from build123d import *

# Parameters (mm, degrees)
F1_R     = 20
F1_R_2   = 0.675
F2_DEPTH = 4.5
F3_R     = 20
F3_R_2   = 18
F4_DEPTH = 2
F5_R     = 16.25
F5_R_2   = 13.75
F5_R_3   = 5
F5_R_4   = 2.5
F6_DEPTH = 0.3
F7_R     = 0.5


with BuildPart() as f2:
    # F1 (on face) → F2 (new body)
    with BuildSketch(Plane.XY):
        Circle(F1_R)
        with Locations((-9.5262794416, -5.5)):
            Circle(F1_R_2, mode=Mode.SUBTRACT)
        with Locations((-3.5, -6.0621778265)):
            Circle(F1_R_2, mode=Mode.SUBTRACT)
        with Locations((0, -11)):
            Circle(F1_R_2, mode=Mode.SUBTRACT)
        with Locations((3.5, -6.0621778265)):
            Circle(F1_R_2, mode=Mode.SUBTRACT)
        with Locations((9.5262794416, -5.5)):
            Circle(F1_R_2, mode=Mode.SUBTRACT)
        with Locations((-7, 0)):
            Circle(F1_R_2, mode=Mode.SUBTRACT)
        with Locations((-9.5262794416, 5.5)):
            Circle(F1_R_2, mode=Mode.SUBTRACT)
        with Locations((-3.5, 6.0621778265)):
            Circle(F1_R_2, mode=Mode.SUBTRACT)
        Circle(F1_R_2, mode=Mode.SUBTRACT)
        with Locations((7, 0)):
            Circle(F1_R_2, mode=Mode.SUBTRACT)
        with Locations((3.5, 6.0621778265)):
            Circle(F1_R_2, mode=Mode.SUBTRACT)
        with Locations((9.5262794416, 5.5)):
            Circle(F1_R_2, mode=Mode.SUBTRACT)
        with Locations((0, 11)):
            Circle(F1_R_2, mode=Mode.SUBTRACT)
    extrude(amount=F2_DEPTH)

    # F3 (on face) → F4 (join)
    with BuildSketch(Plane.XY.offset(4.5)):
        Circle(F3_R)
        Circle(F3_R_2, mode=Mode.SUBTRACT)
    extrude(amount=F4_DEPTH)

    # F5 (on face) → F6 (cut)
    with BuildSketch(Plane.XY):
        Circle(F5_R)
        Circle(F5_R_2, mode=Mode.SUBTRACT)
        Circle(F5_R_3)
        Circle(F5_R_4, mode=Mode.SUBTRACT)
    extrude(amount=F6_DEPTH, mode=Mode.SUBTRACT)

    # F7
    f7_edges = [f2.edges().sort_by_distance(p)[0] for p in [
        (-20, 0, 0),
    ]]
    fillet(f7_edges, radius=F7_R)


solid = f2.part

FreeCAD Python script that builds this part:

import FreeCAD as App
import Part
import Sketcher


def edges_at(feature, points):
    """Names of the edges that pass closest to the given points."""
    edges = feature.Shape.Edges
    near = lambda p: min(range(len(edges)), key=lambda i: edges[i].distToShape(Part.Vertex(*p))[0])
    return sorted({f"Edge{near(p) + 1}" for p in points})

doc = App.newDocument("Part")
body = doc.addObject("PartDesign::Body", "Body")

# Sketch on XY plane
sketch1 = body.newObject("Sketcher::SketchObject", "Sketch")
sketch1.AttachmentSupport = (doc.getObject("XY_Plane"), [""])
sketch1.MapMode = "FlatFace"
sketch1.addGeometry([
    Part.Circle(App.Vector(0, 0, 0), App.Vector(0, 0, 1), 20),  # 0
    Part.Circle(App.Vector(-3.5, -6.062178, 0), App.Vector(0, 0, 1), 0.675),  # 1
    Part.Circle(App.Vector(-9.526279, -5.5, 0), App.Vector(0, 0, 1), 0.675),  # 2
    Part.Circle(App.Vector(0, -11, 0), App.Vector(0, 0, 1), 0.675),  # 3
    Part.Circle(App.Vector(3.5, -6.062178, 0), App.Vector(0, 0, 1), 0.675),  # 4
    Part.Circle(App.Vector(9.526279, -5.5, 0), App.Vector(0, 0, 1), 0.675),  # 5
    Part.Circle(App.Vector(-7, 0, 0), App.Vector(0, 0, 1), 0.675),  # 6
    Part.Circle(App.Vector(-9.526279, 5.5, 0), App.Vector(0, 0, 1), 0.675),  # 7
    Part.Circle(App.Vector(-3.5, 6.062178, 0), App.Vector(0, 0, 1), 0.675),  # 8
    Part.Circle(App.Vector(0, 0, 0), App.Vector(0, 0, 1), 0.675),  # 9
    Part.Circle(App.Vector(7, 0, 0), App.Vector(0, 0, 1), 0.675),  # 10
    Part.Circle(App.Vector(9.526279, 5.5, 0), App.Vector(0, 0, 1), 0.675),  # 11
    Part.Circle(App.Vector(3.5, 6.062178, 0), App.Vector(0, 0, 1), 0.675),  # 12
    Part.Circle(App.Vector(0, 11, 0), App.Vector(0, 0, 1), 0.675),  # 13
], False)
sketch1.addConstraint([
    Sketcher.Constraint("Coincident", 0, 3, -1, 1),
    Sketcher.Constraint("Coincident", 9, 3, -1, 1),
    Sketcher.Constraint("Equal", 1, 2),
    Sketcher.Constraint("Equal", 2, 3),
    Sketcher.Constraint("Equal", 3, 4),
    Sketcher.Constraint("Equal", 4, 5),
    Sketcher.Constraint("Equal", 5, 6),
    Sketcher.Constraint("Equal", 6, 7),
    Sketcher.Constraint("Equal", 7, 8),
    Sketcher.Constraint("Equal", 8, 9),
    Sketcher.Constraint("Equal", 9, 10),
    Sketcher.Constraint("Equal", 10, 11),
    Sketcher.Constraint("Equal", 11, 12),
    Sketcher.Constraint("Equal", 12, 13),
    Sketcher.Constraint("Symmetric", 5, 3, 7, 3, -1, 1),
    Sketcher.Constraint("Symmetric", 4, 3, 8, 3, -1, 1),
    Sketcher.Constraint("Symmetric", 6, 3, 10, 3, -1, 1),
    Sketcher.Constraint("Symmetric", 2, 3, 11, 3, -1, 1),
    Sketcher.Constraint("Symmetric", 1, 3, 12, 3, -1, 1),
    Sketcher.Constraint("Symmetric", 3, 3, 13, 3, -1, 1),
    Sketcher.Constraint("Symmetric", 1, 3, 4, 3, -2),
    Sketcher.Constraint("Symmetric", 2, 3, 5, 3, -2),
    Sketcher.Constraint("PointOnObject", 3, 3, -2),
    Sketcher.Constraint("PointOnObject", 6, 3, -1),
    Sketcher.Constraint("Diameter", 0, 40.0),
    Sketcher.Constraint("Diameter", 1, 1.35),
    Sketcher.Constraint("DistanceY", 3, 3, -1, 1, 11.0),
    Sketcher.Constraint("DistanceX", 6, 3, -1, 1, 7.0),
    Sketcher.Constraint("DistanceX", 1, 3, 4, 3, 7.0),
    Sketcher.Constraint("DistanceY", 2, 3, 7, 3, 11.0),
    Sketcher.Constraint("DistanceX", 2, 3, -1, 1, 9.526279),
    Sketcher.Constraint("DistanceY", 1, 3, -1, 1, 6.062178),
])
pad1 = body.newObject("PartDesign::Pad", "Pad")
pad1.Profile = sketch1
pad1.Length = 4.5

# Sketch on XY plane
sketch2 = body.newObject("Sketcher::SketchObject", "Sketch001")
sketch2.AttachmentSupport = (doc.getObject("XY_Plane"), [""])
sketch2.MapMode = "FlatFace"
sketch2.AttachmentOffset = App.Placement(App.Vector(0, 0, 4.5), App.Rotation())
sketch2.addGeometry([
    Part.Circle(App.Vector(0, 0, 0), App.Vector(0, 0, 1), 20),
    Part.Circle(App.Vector(0, 0, 0), App.Vector(0, 0, 1), 18),
], False)
sketch2.addConstraint([
    Sketcher.Constraint("Coincident", 0, 3, -1, 1),
    Sketcher.Constraint("Coincident", 1, 3, -1, 1),
    Sketcher.Constraint("Diameter", 0, 40.0),
    Sketcher.Constraint("Diameter", 1, 36.0),
])
pad2 = body.newObject("PartDesign::Pad", "Pad001")
pad2.Profile = sketch2
pad2.Length = 2

# Sketch on XY plane
sketch3 = body.newObject("Sketcher::SketchObject", "Sketch002")
sketch3.AttachmentSupport = (doc.getObject("XY_Plane"), [""])
sketch3.MapMode = "FlatFace"
sketch3.addGeometry([
    Part.Circle(App.Vector(0, 0, 0), App.Vector(0, 0, 1), 16.25),
    Part.Circle(App.Vector(0, 0, 0), App.Vector(0, 0, 1), 13.75),
    Part.Circle(App.Vector(0, 0, 0), App.Vector(0, 0, 1), 5),
    Part.Circle(App.Vector(0, 0, 0), App.Vector(0, 0, 1), 2.5),
], False)
sketch3.addConstraint([
    Sketcher.Constraint("Coincident", 0, 3, -1, 1),
    Sketcher.Constraint("Coincident", 1, 3, -1, 1),
    Sketcher.Constraint("Coincident", 2, 3, -1, 1),
    Sketcher.Constraint("Coincident", 3, 3, -1, 1),
    Sketcher.Constraint("Diameter", 2, 10.0),
    Sketcher.Constraint("Diameter", 3, 5.0),
    Sketcher.Constraint("Diameter", 0, 32.5),
    Sketcher.Constraint("Diameter", 1, 27.5),
])
pocket1 = body.newObject("PartDesign::Pocket", "Pocket")
pocket1.Profile = sketch3
pocket1.Length = 0.3
pocket1.Reversed = True
doc.recompute()

fillet = body.newObject("PartDesign::Fillet", "Fillet")
fillet.Base = (pocket1, edges_at(pocket1, [(-20, 0, 0)]))
fillet.Radius = 0.5

doc.recompute()
